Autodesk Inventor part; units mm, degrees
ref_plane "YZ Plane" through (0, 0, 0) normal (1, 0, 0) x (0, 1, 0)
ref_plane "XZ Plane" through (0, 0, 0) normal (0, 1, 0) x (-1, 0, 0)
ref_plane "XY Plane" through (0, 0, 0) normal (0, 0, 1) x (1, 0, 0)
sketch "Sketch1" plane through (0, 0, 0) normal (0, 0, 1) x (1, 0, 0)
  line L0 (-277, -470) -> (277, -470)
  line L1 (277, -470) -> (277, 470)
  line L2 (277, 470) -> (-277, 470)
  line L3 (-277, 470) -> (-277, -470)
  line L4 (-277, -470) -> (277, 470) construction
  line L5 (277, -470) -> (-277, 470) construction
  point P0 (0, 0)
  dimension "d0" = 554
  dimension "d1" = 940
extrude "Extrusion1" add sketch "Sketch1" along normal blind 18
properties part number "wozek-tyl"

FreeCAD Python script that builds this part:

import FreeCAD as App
import Part
import Sketcher

V = App.Vector
Q = App.Units.Quantity

doc = App.newDocument("Part")
body = doc.addObject("PartDesign::Body", "Body")

sketch1 = body.newObject("Sketcher::SketchObject", "Sketch")
sketch1.AttachmentSupport = (doc.getObject("XY_Plane"), [""])
sketch1.MapMode = "FlatFace"
sketch1.addGeometry([
    Part.LineSegment(V(-277, 470, 0), V(-277, -470, 0)),
    Part.LineSegment(V(-277, -470, 0), V(277, -470, 0)),
    Part.LineSegment(V(277, -470, 0), V(277, 470, 0)),
    Part.LineSegment(V(277, 470, 0), V(-277, 470, 0)),
], False)
sketch1.addConstraint([
    Sketcher.Constraint("Coincident", 0, 2, 1, 1),
    Sketcher.Constraint("Coincident", 1, 2, 2, 1),
    Sketcher.Constraint("Coincident", 2, 2, 3, 1),
    Sketcher.Constraint("Coincident", 3, 2, 0, 1),
    Sketcher.Constraint("Vertical", 0),
    Sketcher.Constraint("Horizontal", 1),
    Sketcher.Constraint("Vertical", 2),
    Sketcher.Constraint("Horizontal", 3),
    Sketcher.Constraint("Symmetric", 0, 2, 2, 2, -1, 1),
    Sketcher.Constraint("DistanceX", 1, 1, 1, 2, Q("554 mm")),
    Sketcher.Constraint("DistanceY", 0, 2, 0, 1, Q("940 mm")),
])
pad1 = body.newObject("PartDesign::Pad", "Pad")
pad1.Profile = sketch1
pad1.Length = 18

doc.recompute()
